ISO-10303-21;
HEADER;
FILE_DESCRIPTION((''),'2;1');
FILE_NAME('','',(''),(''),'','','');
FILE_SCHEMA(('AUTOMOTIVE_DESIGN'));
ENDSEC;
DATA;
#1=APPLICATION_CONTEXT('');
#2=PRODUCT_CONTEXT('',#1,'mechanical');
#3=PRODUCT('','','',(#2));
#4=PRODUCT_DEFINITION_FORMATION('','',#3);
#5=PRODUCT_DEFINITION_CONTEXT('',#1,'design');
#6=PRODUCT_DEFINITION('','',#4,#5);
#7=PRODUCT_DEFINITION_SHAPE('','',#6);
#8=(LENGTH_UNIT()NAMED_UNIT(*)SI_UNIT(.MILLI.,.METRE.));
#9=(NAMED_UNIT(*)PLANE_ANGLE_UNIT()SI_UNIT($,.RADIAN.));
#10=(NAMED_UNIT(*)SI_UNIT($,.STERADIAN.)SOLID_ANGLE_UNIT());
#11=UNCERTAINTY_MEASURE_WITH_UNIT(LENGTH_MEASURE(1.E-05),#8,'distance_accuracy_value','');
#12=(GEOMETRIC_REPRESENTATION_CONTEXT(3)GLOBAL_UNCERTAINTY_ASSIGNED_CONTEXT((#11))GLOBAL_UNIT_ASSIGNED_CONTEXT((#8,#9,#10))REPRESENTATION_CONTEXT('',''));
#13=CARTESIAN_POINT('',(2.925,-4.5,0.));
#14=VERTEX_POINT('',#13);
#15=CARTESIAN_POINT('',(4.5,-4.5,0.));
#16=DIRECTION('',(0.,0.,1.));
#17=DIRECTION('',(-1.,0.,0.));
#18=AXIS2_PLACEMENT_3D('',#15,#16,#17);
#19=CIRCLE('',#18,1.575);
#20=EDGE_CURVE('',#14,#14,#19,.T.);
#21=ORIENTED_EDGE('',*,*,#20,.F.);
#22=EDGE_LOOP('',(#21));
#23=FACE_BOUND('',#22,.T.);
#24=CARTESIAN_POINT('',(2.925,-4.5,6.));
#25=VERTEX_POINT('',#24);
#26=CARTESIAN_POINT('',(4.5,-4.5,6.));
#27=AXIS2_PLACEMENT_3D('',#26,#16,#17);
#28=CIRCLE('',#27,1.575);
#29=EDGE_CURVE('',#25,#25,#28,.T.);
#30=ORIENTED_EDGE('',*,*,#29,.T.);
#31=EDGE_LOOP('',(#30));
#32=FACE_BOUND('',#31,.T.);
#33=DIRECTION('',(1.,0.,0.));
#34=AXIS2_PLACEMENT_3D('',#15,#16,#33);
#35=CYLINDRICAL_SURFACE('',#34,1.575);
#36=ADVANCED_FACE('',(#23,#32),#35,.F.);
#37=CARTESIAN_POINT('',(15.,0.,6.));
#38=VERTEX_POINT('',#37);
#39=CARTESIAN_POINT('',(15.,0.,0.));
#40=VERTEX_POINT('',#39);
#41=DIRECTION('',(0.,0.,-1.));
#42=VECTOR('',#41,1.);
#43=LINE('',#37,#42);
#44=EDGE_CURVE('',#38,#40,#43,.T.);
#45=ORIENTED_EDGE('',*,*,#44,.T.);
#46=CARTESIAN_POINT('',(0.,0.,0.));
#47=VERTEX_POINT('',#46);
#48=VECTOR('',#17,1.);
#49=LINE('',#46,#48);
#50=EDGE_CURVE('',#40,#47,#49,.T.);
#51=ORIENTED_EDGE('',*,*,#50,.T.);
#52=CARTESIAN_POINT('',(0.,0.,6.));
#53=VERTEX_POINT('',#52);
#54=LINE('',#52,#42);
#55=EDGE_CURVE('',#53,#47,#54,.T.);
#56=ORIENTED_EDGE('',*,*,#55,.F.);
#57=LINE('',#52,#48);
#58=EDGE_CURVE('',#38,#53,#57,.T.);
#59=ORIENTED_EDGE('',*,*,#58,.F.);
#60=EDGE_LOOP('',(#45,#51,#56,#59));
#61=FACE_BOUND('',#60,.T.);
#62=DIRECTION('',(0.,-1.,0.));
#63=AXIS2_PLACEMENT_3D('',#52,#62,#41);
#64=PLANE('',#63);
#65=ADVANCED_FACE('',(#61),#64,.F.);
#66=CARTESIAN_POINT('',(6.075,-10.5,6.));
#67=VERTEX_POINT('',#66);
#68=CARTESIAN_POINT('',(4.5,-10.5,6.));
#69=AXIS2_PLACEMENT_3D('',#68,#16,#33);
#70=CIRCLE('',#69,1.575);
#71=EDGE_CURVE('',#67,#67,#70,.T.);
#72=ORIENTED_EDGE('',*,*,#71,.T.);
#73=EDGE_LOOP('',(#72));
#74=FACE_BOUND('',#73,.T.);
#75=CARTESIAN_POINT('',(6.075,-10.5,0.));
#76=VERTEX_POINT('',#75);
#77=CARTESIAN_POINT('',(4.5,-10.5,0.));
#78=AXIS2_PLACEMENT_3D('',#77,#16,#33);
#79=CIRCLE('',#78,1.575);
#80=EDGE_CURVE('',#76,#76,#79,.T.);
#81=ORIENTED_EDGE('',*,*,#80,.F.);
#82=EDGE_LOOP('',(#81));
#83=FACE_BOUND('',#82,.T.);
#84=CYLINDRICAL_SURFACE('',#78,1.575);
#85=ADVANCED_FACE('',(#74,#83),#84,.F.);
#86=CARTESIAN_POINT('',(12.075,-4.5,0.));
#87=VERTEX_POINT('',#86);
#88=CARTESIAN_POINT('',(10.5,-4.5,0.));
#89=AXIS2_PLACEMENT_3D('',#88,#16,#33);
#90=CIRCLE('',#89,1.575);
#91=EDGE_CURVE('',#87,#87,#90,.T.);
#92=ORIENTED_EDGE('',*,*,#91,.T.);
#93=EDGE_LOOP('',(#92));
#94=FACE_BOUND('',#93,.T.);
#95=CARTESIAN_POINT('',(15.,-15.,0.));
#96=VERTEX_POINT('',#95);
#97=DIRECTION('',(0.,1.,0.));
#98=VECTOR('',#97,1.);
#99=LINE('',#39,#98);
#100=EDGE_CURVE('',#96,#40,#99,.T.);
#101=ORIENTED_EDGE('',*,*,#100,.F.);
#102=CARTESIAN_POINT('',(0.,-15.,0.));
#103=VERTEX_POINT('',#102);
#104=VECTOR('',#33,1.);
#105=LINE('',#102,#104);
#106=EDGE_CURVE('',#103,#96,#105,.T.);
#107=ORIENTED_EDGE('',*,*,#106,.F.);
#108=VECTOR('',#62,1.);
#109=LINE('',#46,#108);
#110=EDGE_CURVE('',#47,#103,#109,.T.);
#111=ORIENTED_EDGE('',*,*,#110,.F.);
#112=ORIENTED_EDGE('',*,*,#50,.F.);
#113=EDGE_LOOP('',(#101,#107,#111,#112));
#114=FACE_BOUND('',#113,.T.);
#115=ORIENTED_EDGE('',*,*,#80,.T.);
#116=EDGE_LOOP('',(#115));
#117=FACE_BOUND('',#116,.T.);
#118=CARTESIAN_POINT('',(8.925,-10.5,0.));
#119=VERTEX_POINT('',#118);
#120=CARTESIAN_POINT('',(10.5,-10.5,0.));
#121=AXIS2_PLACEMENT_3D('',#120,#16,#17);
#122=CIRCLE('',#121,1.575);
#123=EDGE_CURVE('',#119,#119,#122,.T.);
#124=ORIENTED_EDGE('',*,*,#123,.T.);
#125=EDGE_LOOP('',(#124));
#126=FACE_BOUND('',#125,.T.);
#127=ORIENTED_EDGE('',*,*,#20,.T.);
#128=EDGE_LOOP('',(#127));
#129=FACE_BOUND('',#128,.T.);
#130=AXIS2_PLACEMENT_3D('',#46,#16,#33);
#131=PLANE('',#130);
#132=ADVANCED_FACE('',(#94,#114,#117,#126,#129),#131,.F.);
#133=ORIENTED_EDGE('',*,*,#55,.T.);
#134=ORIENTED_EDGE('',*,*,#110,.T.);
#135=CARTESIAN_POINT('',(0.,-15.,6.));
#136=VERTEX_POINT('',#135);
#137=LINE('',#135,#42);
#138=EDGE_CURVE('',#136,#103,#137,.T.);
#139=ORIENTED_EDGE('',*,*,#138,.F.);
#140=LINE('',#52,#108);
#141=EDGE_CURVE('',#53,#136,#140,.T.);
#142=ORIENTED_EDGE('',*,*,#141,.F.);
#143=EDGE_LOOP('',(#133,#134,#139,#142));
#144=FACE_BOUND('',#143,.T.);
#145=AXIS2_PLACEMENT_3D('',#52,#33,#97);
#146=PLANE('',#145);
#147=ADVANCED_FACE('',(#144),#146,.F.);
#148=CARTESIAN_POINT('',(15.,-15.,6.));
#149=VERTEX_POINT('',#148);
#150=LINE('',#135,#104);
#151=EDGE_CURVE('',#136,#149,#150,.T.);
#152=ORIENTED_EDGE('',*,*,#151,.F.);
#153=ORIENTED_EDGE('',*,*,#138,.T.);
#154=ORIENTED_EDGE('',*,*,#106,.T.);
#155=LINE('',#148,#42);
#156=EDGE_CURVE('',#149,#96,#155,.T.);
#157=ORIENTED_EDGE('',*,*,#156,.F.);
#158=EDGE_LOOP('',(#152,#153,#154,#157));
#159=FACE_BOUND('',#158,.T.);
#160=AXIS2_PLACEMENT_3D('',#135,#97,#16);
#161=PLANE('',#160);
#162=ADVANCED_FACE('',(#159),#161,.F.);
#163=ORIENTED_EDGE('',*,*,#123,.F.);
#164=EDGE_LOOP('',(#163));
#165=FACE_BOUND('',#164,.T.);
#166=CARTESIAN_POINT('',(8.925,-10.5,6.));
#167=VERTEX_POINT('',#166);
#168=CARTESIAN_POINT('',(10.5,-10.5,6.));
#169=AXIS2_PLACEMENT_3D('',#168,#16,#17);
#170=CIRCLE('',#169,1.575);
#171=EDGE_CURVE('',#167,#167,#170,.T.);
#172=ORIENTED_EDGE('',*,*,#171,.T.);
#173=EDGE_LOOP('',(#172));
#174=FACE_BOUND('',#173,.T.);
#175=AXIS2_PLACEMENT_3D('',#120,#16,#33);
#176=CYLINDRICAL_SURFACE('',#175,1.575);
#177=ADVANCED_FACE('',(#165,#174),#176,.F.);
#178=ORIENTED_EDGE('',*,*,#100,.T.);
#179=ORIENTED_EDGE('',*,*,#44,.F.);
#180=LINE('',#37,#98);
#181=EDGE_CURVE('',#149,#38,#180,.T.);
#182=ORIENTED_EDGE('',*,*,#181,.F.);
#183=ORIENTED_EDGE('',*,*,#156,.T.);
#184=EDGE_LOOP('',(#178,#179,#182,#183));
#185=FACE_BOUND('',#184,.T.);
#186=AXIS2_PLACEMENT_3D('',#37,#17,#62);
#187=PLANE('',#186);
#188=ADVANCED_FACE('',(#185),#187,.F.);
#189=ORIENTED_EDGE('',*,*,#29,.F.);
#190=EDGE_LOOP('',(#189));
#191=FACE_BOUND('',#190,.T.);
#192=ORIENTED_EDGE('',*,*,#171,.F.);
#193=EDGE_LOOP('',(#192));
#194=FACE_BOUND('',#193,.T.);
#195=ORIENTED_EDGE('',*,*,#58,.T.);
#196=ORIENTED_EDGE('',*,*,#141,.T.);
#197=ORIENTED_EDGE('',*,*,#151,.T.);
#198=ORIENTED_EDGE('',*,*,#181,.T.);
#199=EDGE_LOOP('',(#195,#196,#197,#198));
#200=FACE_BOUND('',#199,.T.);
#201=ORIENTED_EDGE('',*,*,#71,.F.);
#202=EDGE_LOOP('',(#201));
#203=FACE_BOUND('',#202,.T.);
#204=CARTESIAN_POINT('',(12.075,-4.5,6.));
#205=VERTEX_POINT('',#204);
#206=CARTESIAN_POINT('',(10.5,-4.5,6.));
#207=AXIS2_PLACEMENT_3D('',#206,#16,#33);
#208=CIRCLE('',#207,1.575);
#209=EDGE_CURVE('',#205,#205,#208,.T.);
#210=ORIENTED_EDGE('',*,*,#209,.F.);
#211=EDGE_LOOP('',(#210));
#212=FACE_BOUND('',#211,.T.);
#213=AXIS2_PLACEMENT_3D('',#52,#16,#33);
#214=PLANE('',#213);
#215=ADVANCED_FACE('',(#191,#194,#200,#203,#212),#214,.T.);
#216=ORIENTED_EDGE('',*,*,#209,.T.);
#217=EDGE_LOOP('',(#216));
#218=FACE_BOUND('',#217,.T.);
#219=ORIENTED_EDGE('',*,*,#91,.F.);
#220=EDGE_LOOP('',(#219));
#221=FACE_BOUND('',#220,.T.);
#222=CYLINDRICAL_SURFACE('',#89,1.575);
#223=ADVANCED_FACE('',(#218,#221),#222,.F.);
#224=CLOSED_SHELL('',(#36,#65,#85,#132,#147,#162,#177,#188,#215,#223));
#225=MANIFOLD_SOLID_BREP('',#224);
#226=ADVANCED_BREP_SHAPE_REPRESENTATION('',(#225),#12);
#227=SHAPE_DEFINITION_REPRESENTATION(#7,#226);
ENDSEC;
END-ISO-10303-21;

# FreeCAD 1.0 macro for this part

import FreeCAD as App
import Part
import Sketcher

V = App.Vector
Q = App.Units.Quantity

doc = App.newDocument("Part")
body = doc.addObject("PartDesign::Body", "Body")

# Sketch on XY plane
sketch1 = doc.addObject("Sketcher::SketchObject", "Sketch")
body.addObject(sketch1)
sketch1.AttachmentSupport = (doc.XY_Plane, [""])
sketch1.MapMode = "FlatFace"
sketch1.addGeometry([
    Part.LineSegment(V(0, 0, 0), V(0, -15, 0)),
    Part.LineSegment(V(0, -15, 0), V(15, -15, 0)),
    Part.LineSegment(V(15, -15, 0), V(15, 0, 0)),
    Part.LineSegment(V(15, 0, 0), V(0, 0, 0)),
], False)
sketch1.addConstraint([
    Sketcher.Constraint("Coincident", 0, 2, 1, 1),
    Sketcher.Constraint("Coincident", 1, 2, 2, 1),
    Sketcher.Constraint("Coincident", 2, 2, 3, 1),
    Sketcher.Constraint("Coincident", 3, 2, 0, 1),
    Sketcher.Constraint("Vertical", 0),
    Sketcher.Constraint("Horizontal", 1),
    Sketcher.Constraint("Vertical", 2),
    Sketcher.Constraint("Horizontal", 3),
    Sketcher.Constraint("Coincident", 3, 2, -1, 1),
    Sketcher.Constraint("Equal", 3, 0),
    Sketcher.Constraint("DistanceX", 1, 1, 1, 2, Q("15 mm")),
])
pad1 = doc.addObject("PartDesign::Pad", "Pad")
body.addObject(pad1)
pad1.Profile = sketch1
pad1.Length = 6

# Sketch on XY plane
sketch2 = doc.addObject("Sketcher::SketchObject", "Sketch001")
body.addObject(sketch2)
sketch2.AttachmentSupport = (doc.XY_Plane, [""])
sketch2.MapMode = "FlatFace"
sketch2.AttachmentOffset = App.Placement(V(0, 0, 6), App.Rotation())
sketch2.addGeometry([
    Part.Circle(V(4.5, -10.5, 0), V(0, 0, 1), 1.6),
    Part.Circle(V(10.5, -10.5, 0), V(0, 0, 1), 1.6),
    Part.Circle(V(10.5, -4.5, 0), V(0, 0, 1), 1.6),
    Part.Circle(V(4.5, -4.5, 0), V(0, 0, 1), 1.6),
], False)
sketch2.addConstraint([
    Sketcher.Constraint("Equal", 0, 1),
    Sketcher.Constraint("Equal", 1, 2),
    Sketcher.Constraint("Equal", 2, 3),
    Sketcher.Constraint("Horizontal", 0, 3, 1, 3),
    Sketcher.Constraint("Horizontal", 2, 3, 3, 3),
    Sketcher.Constraint("Vertical", 1, 3, 2, 3),
    Sketcher.Constraint("Vertical", 0, 3, 3, 3),
    Sketcher.Constraint("Diameter", 0, Q("3.15 mm")),
    Sketcher.Constraint("DistanceX", 0, 3, 1, 3, Q("6 mm")),
    Sketcher.Constraint("DistanceY", 1, 3, 2, 3, Q("6 mm")),
    Sketcher.Constraint("DistanceX", -1, 1, 0, 3, Q("4.5 mm")),
    Sketcher.Constraint("DistanceY", 0, 3, -1, 1, Q("10.5 mm")),
])
pocket1 = doc.addObject("PartDesign::Pocket", "Pocket")
body.addObject(pocket1)
pocket1.Profile = sketch2
pocket1.Type = "ThroughAll"

doc.recompute()
